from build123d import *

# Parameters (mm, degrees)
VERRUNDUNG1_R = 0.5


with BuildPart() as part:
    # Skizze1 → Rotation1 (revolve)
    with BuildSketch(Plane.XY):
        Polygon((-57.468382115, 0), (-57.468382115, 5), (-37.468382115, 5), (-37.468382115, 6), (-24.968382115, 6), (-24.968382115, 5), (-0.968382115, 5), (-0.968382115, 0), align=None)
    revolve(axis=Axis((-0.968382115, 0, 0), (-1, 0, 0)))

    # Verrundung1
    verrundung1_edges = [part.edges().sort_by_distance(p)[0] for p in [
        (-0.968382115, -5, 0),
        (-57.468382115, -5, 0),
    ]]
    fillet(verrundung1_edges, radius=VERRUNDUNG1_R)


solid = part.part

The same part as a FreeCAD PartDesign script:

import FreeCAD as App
import Part
import Sketcher

V = App.Vector
Q = App.Units.Quantity


def edges_at(feature, points):
    """Names of the edges that pass closest to the given points."""
    edges = feature.Shape.Edges
    near = lambda p: min(range(len(edges)), key=lambda i: edges[i].distToShape(Part.Vertex(*p))[0])
    return sorted({f"Edge{near(p) + 1}" for p in points})


def add_polygon(sketch, points):
    """Adds a closed chain of lines whose ends are joined by coincident constraints."""
    first, n = sketch.GeometryCount, len(points)
    for a, b in zip(points, points[1:] + points[:1]):
        sketch.addGeometry(Part.LineSegment(App.Vector(*a, 0), App.Vector(*b, 0)), False)
    for i in range(n):
        sketch.addConstraint(Sketcher.Constraint("Coincident", first + i, 2, first + (i + 1) % n, 1))

doc = App.newDocument("Part")
body = doc.addObject("PartDesign::Body", "Body")

sketch1 = body.newObject("Sketcher::SketchObject", "Sketch")
sketch1.AttachmentSupport = (doc.getObject("XY_Plane"), [""])
sketch1.MapMode = "FlatFace"
add_polygon(sketch1, [(-57.5, 5), (-57.5, 0), (-1, 0), (-1, 5), (-25, 5), (-25, 6), (-37.5, 6), (-37.5, 5)])
sketch1.addConstraint(Sketcher.Constraint("Vertical", 0))
sketch1.addConstraint(Sketcher.Constraint("Horizontal", 1))
sketch1.addConstraint(Sketcher.Constraint("Vertical", 2))
sketch1.addConstraint(Sketcher.Constraint("Horizontal", 3))
sketch1.addConstraint(Sketcher.Constraint("Vertical", 4))
sketch1.addConstraint(Sketcher.Constraint("Horizontal", 5))
sketch1.addConstraint(Sketcher.Constraint("Vertical", 6))
sketch1.addConstraint(Sketcher.Constraint("Horizontal", 7))
sketch1.addConstraint(Sketcher.Constraint("PointOnObject", 0, 2, -1))
sketch1.addConstraint(Sketcher.Constraint("Horizontal", 3, 2, 6, 2))
sketch1.addConstraint(Sketcher.Constraint("DistanceX", 3, 2, 3, 1, Q("24 mm")))
sketch1.addConstraint(Sketcher.Constraint("DistanceX", 7, 2, 7, 1, Q("20 mm")))
sketch1.addConstraint(Sketcher.Constraint("DistanceY", 0, 2, 0, 1, Q("5 mm")))
sketch1.addConstraint(Sketcher.Constraint("DistanceY", 4, 1, 4, 2, Q("1 mm")))
sketch1.addConstraint(Sketcher.Constraint("DistanceX", 1, 1, 1, 2, Q("56.5 mm")))
sketch1.addConstraint(Sketcher.Constraint("DistanceX", 0, 2, -1, 1, Q("57.468382 mm")))
revolution = body.newObject("PartDesign::Revolution", "Revolution")
revolution.Profile = sketch1
revolution.ReferenceAxis = (sketch1, ["H_Axis"])
revolution.Angle = 360
doc.recompute()

fillet = body.newObject("PartDesign::Fillet", "Fillet")
fillet.Base = (revolution, edges_at(revolution, [(-0.968, -5, 0), (-57.468, -5, 0)]))
fillet.Radius = 0.5

doc.recompute()
